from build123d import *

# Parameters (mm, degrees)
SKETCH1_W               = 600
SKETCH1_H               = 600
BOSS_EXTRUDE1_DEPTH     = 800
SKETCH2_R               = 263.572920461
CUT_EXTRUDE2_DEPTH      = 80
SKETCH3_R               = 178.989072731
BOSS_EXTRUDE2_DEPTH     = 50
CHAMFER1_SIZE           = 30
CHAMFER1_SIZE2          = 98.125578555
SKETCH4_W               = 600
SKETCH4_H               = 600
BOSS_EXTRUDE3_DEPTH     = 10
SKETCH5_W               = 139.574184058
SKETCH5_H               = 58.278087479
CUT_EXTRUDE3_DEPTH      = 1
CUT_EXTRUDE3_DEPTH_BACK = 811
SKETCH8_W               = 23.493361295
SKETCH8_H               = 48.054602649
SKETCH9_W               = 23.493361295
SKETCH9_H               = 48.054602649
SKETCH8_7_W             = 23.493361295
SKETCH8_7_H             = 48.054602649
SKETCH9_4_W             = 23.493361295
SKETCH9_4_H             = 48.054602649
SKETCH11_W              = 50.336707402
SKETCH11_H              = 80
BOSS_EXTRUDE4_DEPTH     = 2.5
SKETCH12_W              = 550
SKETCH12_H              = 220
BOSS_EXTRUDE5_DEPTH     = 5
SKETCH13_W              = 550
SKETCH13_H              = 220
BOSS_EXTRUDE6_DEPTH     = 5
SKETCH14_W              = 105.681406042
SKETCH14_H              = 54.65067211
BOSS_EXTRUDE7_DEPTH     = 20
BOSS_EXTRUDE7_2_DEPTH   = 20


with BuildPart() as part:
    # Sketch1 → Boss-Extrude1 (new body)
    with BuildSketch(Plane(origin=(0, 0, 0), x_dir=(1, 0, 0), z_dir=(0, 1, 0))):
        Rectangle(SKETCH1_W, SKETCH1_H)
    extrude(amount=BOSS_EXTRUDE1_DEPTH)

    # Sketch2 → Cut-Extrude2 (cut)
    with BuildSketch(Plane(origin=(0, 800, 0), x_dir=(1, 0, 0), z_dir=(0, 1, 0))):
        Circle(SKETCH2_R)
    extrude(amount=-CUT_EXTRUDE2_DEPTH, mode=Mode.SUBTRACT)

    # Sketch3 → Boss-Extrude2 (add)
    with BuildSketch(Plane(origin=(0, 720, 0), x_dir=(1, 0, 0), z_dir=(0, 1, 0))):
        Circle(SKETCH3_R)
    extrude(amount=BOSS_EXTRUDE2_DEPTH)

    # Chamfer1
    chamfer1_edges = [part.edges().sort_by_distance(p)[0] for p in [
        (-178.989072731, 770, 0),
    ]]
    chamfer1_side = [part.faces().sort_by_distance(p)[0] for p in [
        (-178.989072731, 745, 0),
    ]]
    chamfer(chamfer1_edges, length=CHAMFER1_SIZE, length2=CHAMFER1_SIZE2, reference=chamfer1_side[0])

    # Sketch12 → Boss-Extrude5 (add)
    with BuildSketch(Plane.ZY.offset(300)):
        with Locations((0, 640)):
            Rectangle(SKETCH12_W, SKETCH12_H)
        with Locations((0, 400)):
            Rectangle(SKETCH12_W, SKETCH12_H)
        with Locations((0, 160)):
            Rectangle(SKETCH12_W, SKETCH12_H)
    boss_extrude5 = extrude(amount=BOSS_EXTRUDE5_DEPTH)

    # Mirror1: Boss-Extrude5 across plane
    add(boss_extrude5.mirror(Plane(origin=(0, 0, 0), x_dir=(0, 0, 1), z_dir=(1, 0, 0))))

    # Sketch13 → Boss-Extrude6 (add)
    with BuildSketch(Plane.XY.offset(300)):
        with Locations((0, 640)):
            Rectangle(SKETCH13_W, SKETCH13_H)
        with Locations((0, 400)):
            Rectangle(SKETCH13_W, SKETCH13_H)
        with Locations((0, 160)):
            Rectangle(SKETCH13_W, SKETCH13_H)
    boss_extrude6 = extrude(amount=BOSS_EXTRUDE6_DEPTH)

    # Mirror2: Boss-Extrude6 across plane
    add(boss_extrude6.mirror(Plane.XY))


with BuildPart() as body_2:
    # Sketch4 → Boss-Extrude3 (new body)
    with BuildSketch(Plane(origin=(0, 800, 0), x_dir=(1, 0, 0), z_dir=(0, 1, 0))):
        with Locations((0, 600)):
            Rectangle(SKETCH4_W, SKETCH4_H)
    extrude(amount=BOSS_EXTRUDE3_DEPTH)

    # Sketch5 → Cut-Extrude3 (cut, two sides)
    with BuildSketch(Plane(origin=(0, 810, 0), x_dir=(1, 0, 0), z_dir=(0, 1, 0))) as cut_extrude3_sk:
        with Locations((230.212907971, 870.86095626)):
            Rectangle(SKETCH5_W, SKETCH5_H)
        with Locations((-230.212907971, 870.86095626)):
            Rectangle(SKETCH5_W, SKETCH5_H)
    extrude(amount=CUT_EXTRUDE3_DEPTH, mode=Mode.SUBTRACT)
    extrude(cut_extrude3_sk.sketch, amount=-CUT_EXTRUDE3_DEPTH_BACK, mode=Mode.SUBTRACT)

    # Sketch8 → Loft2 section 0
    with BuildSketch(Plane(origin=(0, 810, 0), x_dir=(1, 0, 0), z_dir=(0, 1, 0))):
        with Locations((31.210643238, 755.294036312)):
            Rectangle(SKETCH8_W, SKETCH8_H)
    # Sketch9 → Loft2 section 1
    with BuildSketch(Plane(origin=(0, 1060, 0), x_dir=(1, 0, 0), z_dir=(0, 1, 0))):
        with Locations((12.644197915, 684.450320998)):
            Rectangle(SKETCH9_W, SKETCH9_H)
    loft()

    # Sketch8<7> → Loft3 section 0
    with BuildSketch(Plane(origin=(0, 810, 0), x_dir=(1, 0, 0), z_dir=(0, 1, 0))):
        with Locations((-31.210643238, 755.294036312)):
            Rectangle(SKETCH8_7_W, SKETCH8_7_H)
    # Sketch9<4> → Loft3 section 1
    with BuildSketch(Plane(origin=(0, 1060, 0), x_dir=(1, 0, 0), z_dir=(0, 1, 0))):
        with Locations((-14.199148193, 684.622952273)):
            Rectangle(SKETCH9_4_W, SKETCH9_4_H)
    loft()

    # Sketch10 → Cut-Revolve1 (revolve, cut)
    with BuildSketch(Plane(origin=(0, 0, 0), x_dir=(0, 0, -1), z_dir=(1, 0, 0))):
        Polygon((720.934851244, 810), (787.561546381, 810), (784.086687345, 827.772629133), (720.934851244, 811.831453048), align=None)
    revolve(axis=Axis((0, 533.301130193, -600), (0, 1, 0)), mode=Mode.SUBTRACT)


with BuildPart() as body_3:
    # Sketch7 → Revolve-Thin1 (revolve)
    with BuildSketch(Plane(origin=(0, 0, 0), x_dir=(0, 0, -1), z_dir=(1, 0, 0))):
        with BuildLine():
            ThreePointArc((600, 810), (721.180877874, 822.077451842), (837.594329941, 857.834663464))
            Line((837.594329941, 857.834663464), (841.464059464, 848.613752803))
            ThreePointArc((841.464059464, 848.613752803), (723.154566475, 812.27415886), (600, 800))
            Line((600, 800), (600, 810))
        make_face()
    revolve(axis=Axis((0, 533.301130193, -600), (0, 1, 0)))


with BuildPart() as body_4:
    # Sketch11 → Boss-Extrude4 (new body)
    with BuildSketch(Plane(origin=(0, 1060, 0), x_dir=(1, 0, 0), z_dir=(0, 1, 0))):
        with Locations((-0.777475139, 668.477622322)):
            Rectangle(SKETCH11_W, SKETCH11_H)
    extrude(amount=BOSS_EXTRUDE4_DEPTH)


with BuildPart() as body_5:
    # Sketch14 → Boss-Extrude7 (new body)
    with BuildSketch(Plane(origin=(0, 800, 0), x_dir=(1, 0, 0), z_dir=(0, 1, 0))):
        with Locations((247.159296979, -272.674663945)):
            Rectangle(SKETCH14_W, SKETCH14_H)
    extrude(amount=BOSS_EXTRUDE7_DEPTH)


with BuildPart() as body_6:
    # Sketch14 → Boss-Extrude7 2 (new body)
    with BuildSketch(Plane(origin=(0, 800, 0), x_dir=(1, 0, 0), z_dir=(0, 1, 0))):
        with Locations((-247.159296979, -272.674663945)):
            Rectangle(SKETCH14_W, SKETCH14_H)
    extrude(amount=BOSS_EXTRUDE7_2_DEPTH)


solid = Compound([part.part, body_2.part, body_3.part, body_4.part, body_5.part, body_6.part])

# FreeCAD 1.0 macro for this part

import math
import FreeCAD as App
import Part
import Sketcher
Q = App.Units.Quantity


def edges_at(feature, points):
    """Names of the edges that pass closest to the given points."""
    edges = feature.Shape.Edges
    near = lambda p: min(range(len(edges)), key=lambda i: edges[i].distToShape(Part.Vertex(*p))[0])
    return sorted({f"Edge{near(p) + 1}" for p in points})

doc = App.newDocument("Part")
body = doc.addObject("PartDesign::Body", "Body")

# Sketch on XZ plane
sketch1 = body.newObject("Sketcher::SketchObject", "Sketch")
sketch1.AttachmentSupport = (doc.getObject("XZ_Plane"), [""])
sketch1.MapMode = "FlatFace"
sketch1.addGeometry([
    Part.LineSegment(App.Vector(-300, -300, 0), App.Vector(-300, 300, 0)),
    Part.LineSegment(App.Vector(-300, 300, 0), App.Vector(300, 300, 0)),
    Part.LineSegment(App.Vector(300, 300, 0), App.Vector(300, -300, 0)),
    Part.LineSegment(App.Vector(300, -300, 0), App.Vector(-300, -300, 0)),
], False)
sketch1.addConstraint([
    Sketcher.Constraint("Coincident", 0, 2, 1, 1),
    Sketcher.Constraint("Coincident", 1, 2, 2, 1),
    Sketcher.Constraint("Coincident", 2, 2, 3, 1),
    Sketcher.Constraint("Coincident", 3, 2, 0, 1),
    Sketcher.Constraint("Vertical", 0),
    Sketcher.Constraint("Horizontal", 1),
    Sketcher.Constraint("Vertical", 2),
    Sketcher.Constraint("Horizontal", 3),
    Sketcher.Constraint("Symmetric", 0, 2, 2, 2, -1, 1),
    Sketcher.Constraint("Equal", 3, 0),
    Sketcher.Constraint("DistanceX", 1, 1, 1, 2, Q("600 mm")),
])
pad1 = body.newObject("PartDesign::Pad", "Pad")
pad1.Profile = sketch1
pad1.Length = 800
pad1.Reversed = True

# Sketch on XZ plane
sketch2 = body.newObject("Sketcher::SketchObject", "Sketch001")
sketch2.AttachmentSupport = (doc.getObject("XZ_Plane"), [""])
sketch2.MapMode = "FlatFace"
sketch2.AttachmentOffset = App.Placement(App.Vector(0, 0, -800), App.Rotation())
sketch2.addGeometry(Part.Circle(App.Vector(0, 0, 0), App.Vector(0, 0, 1), 263.57292), False)
sketch2.addConstraint([
    Sketcher.Constraint("Coincident", 0, 3, -1, 1),
    Sketcher.Constraint("Diameter", 0, Q("527.145841 mm")),
])
pocket1 = body.newObject("PartDesign::Pocket", "Pocket")
pocket1.Profile = sketch2
pocket1.Length = 80
pocket1.Reversed = True

# Sketch on XZ plane
sketch3 = body.newObject("Sketcher::SketchObject", "Sketch002")
sketch3.AttachmentSupport = (doc.getObject("XZ_Plane"), [""])
sketch3.MapMode = "FlatFace"
sketch3.AttachmentOffset = App.Placement(App.Vector(0, 0, -720), App.Rotation())
sketch3.addGeometry(Part.Circle(App.Vector(0, 0, 0), App.Vector(0, 0, 1), 178.989073), False)
sketch3.addConstraint([
    Sketcher.Constraint("Coincident", 0, 3, -1, 1),
    Sketcher.Constraint("Diameter", 0, Q("357.978145 mm")),
])
pad2 = body.newObject("PartDesign::Pad", "Pad001")
pad2.Profile = sketch3
pad2.Length = 50
pad2.Reversed = True
doc.recompute()

chamfer = body.newObject("PartDesign::Chamfer", "Chamfer")
chamfer.Base = (pad2, edges_at(pad2, [(-178.989, 770, 0)]))
chamfer.ChamferType = "Two distances"
chamfer.Size = 30
chamfer.Size2 = 98.125579

# Sketch on YZ plane
sketch4 = body.newObject("Sketcher::SketchObject", "Sketch003")
sketch4.AttachmentSupport = (doc.getObject("YZ_Plane"), [""])
sketch4.MapMode = "FlatFace"
sketch4.AttachmentOffset = App.Placement(App.Vector(0, 0, -300), App.Rotation())
sketch4.addGeometry([
    Part.LineSegment(App.Vector(750, -275, 0), App.Vector(530, -275, 0)),  # 0
    Part.LineSegment(App.Vector(530, -275, 0), App.Vector(530, 275, 0)),  # 1
    Part.LineSegment(App.Vector(530, 275, 0), App.Vector(750, 275, 0)),  # 2
    Part.LineSegment(App.Vector(750, 275, 0), App.Vector(750, -275, 0)),  # 3
    Part.LineSegment(App.Vector(510, -275, 0), App.Vector(290, -275, 0)),  # 4
    Part.LineSegment(App.Vector(290, -275, 0), App.Vector(290, 275, 0)),  # 5
    Part.LineSegment(App.Vector(290, 275, 0), App.Vector(510, 275, 0)),  # 6
    Part.LineSegment(App.Vector(510, 275, 0), App.Vector(510, -275, 0)),  # 7
    Part.LineSegment(App.Vector(270, -275, 0), App.Vector(50, -275, 0)),  # 8
    Part.LineSegment(App.Vector(50, -275, 0), App.Vector(50, 275, 0)),  # 9
    Part.LineSegment(App.Vector(50, 275, 0), App.Vector(270, 275, 0)),  # 10
    Part.LineSegment(App.Vector(270, 275, 0), App.Vector(270, -275, 0)),  # 11
], False)
sketch4.addConstraint([
    Sketcher.Constraint("Coincident", 0, 2, 1, 1),
    Sketcher.Constraint("Coincident", 1, 2, 2, 1),
    Sketcher.Constraint("Coincident", 2, 2, 3, 1),
    Sketcher.Constraint("Coincident", 3, 2, 0, 1),
    Sketcher.Constraint("Coincident", 4, 2, 5, 1),
    Sketcher.Constraint("Coincident", 5, 2, 6, 1),
    Sketcher.Constraint("Coincident", 6, 2, 7, 1),
    Sketcher.Constraint("Coincident", 7, 2, 4, 1),
    Sketcher.Constraint("Coincident", 8, 2, 9, 1),
    Sketcher.Constraint("Coincident", 9, 2, 10, 1),
    Sketcher.Constraint("Coincident", 10, 2, 11, 1),
    Sketcher.Constraint("Coincident", 11, 2, 8, 1),
    Sketcher.Constraint("Horizontal", 0),
    Sketcher.Constraint("Vertical", 1),
    Sketcher.Constraint("Horizontal", 2),
    Sketcher.Constraint("Vertical", 3),
    Sketcher.Constraint("Horizontal", 4),
    Sketcher.Constraint("Vertical", 5),
    Sketcher.Constraint("Horizontal", 6),
    Sketcher.Constraint("Vertical", 7),
    Sketcher.Constraint("Horizontal", 8),
    Sketcher.Constraint("Vertical", 9),
    Sketcher.Constraint("Horizontal", 10),
    Sketcher.Constraint("Vertical", 11),
    Sketcher.Constraint("Horizontal", 3, 2, 4, 2),
    Sketcher.Constraint("Horizontal", 2, 2, 5, 2),
    Sketcher.Constraint("Horizontal", 7, 2, 8, 2),
    Sketcher.Constraint("Horizontal", 6, 2, 9, 2),
    Sketcher.Constraint("Equal", 2, 4),
    Sketcher.Constraint("Equal", 6, 8),
    Sketcher.Constraint("DistanceX", 0, 2, 0, 1, Q("220 mm")),
    Sketcher.Constraint("DistanceY", 1, 1, 1, 2, Q("550 mm")),
    Sketcher.Constraint("DistanceX", -1, 1, 0, 2, Q("530 mm")),
    Sketcher.Constraint("DistanceY", 0, 2, -1, 1, Q("275 mm")),
    Sketcher.Constraint("DistanceX", -1, 1, 4, 2, Q("290 mm")),
    Sketcher.Constraint("DistanceX", -1, 1, 8, 2, Q("50 mm")),
])
pad3 = body.newObject("PartDesign::Pad", "Pad002")
pad3.Profile = sketch4
pad3.Length = 5
pad3.Reversed = True
doc.recompute()

mirrored = body.newObject("PartDesign::Mirrored", "Mirrored")
mirrored.Originals = [pad3]
mirrored.MirrorPlane = (doc.getObject("YZ_Plane"), [""])
body.Tip = mirrored

# Sketch on XY plane
sketch5 = body.newObject("Sketcher::SketchObject", "Sketch004")
sketch5.AttachmentSupport = (doc.getObject("XY_Plane"), [""])
sketch5.MapMode = "FlatFace"
sketch5.AttachmentOffset = App.Placement(App.Vector(0, 0, 300), App.Rotation())
sketch5.addGeometry([
    Part.LineSegment(App.Vector(-275, 750, 0), App.Vector(-275, 530, 0)),  # 0
    Part.LineSegment(App.Vector(-275, 530, 0), App.Vector(275, 530, 0)),  # 1
    Part.LineSegment(App.Vector(275, 530, 0), App.Vector(275, 750, 0)),  # 2
    Part.LineSegment(App.Vector(275, 750, 0), App.Vector(-275, 750, 0)),  # 3
    Part.LineSegment(App.Vector(-275, 510, 0), App.Vector(-275, 290, 0)),  # 4
    Part.LineSegment(App.Vector(-275, 290, 0), App.Vector(275, 290, 0)),  # 5
    Part.LineSegment(App.Vector(275, 290, 0), App.Vector(275, 510, 0)),  # 6
    Part.LineSegment(App.Vector(275, 510, 0), App.Vector(-275, 510, 0)),  # 7
    Part.LineSegment(App.Vector(-275, 270, 0), App.Vector(-275, 50, 0)),  # 8
    Part.LineSegment(App.Vector(-275, 50, 0), App.Vector(275, 50, 0)),  # 9
    Part.LineSegment(App.Vector(275, 50, 0), App.Vector(275, 270, 0)),  # 10
    Part.LineSegment(App.Vector(275, 270, 0), App.Vector(-275, 270, 0)),  # 11
], False)
sketch5.addConstraint([
    Sketcher.Constraint("Coincident", 0, 2, 1, 1),
    Sketcher.Constraint("Coincident", 1, 2, 2, 1),
    Sketcher.Constraint("Coincident", 2, 2, 3, 1),
    Sketcher.Constraint("Coincident", 3, 2, 0, 1),
    Sketcher.Constraint("Coincident", 4, 2, 5, 1),
    Sketcher.Constraint("Coincident", 5, 2, 6, 1),
    Sketcher.Constraint("Coincident", 6, 2, 7, 1),
    Sketcher.Constraint("Coincident", 7, 2, 4, 1),
    Sketcher.Constraint("Coincident", 8, 2, 9, 1),
    Sketcher.Constraint("Coincident", 9, 2, 10, 1),
    Sketcher.Constraint("Coincident", 10, 2, 11, 1),
    Sketcher.Constraint("Coincident", 11, 2, 8, 1),
    Sketcher.Constraint("Vertical", 0),
    Sketcher.Constraint("Horizontal", 1),
    Sketcher.Constraint("Vertical", 2),
    Sketcher.Constraint("Horizontal", 3),
    Sketcher.Constraint("Vertical", 4),
    Sketcher.Constraint("Horizontal", 5),
    Sketcher.Constraint("Vertical", 6),
    Sketcher.Constraint("Horizontal", 7),
    Sketcher.Constraint("Vertical", 8),
    Sketcher.Constraint("Horizontal", 9),
    Sketcher.Constraint("Vertical", 10),
    Sketcher.Constraint("Horizontal", 11),
    Sketcher.Constraint("Vertical", 3, 2, 4, 2),
    Sketcher.Constraint("Vertical", 2, 2, 5, 2),
    Sketcher.Constraint("Vertical", 7, 2, 8, 2),
    Sketcher.Constraint("Vertical", 6, 2, 9, 2),
    Sketcher.Constraint("Equal", 2, 4),
    Sketcher.Constraint("Equal", 6, 8),
    Sketcher.Constraint("DistanceX", 1, 1, 1, 2, Q("550 mm")),
    Sketcher.Constraint("DistanceY", 0, 2, 0, 1, Q("220 mm")),
    Sketcher.Constraint("DistanceX", 0, 2, -1, 1, Q("275 mm")),
    Sketcher.Constraint("DistanceY", -1, 1, 0, 2, Q("530 mm")),
    Sketcher.Constraint("DistanceY", -1, 1, 4, 2, Q("290 mm")),
    Sketcher.Constraint("DistanceY", -1, 1, 8, 2, Q("50 mm")),
])
pad4 = body.newObject("PartDesign::Pad", "Pad003")
pad4.Profile = sketch5
pad4.Length = 5
doc.recompute()

mirrored2 = body.newObject("PartDesign::Mirrored", "Mirrored001")
mirrored2.Originals = [pad4]
mirrored2.MirrorPlane = (doc.getObject("XY_Plane"), [""])
body.Tip = mirrored2
body2 = doc.addObject("PartDesign::Body", "Body001")
body2.AllowCompound = True

# Sketch on XZ plane
sketch6 = body2.newObject("Sketcher::SketchObject", "Sketch005")
sketch6.AttachmentSupport = (doc.getObject("XZ_Plane001"), [""])
sketch6.MapMode = "FlatFace"
sketch6.AttachmentOffset = App.Placement(App.Vector(0, 0, -800), App.Rotation())
sketch6.addGeometry([
    Part.LineSegment(App.Vector(-300, -900, 0), App.Vector(-300, -300, 0)),
    Part.LineSegment(App.Vector(-300, -300, 0), App.Vector(300, -300, 0)),
    Part.LineSegment(App.Vector(300, -300, 0), App.Vector(300, -900, 0)),
    Part.LineSegment(App.Vector(300, -900, 0), App.Vector(-300, -900, 0)),
], False)
sketch6.addConstraint([
    Sketcher.Constraint("Coincident", 0, 2, 1, 1),
    Sketcher.Constraint("Coincident", 1, 2, 2, 1),
    Sketcher.Constraint("Coincident", 2, 2, 3, 1),
    Sketcher.Constraint("Coincident", 3, 2, 0, 1),
    Sketcher.Constraint("Vertical", 0),
    Sketcher.Constraint("Horizontal", 1),
    Sketcher.Constraint("Vertical", 2),
    Sketcher.Constraint("Horizontal", 3),
    Sketcher.Constraint("Equal", 3, 0),
    Sketcher.Constraint("DistanceX", 1, 1, 1, 2, Q("600 mm")),
    Sketcher.Constraint("DistanceX", 0, 2, -1, 1, Q("300 mm")),
    Sketcher.Constraint("DistanceY", 0, 2, -1, 1, Q("300 mm")),
])
pad5 = body2.newObject("PartDesign::Pad", "Pad004")
pad5.Profile = sketch6
pad5.Length = 10
pad5.Reversed = True

# Sketch on XZ plane
sketch7 = body2.newObject("Sketcher::SketchObject", "Sketch006")
sketch7.AttachmentSupport = (doc.getObject("XZ_Plane001"), [""])
sketch7.MapMode = "FlatFace"
sketch7.AttachmentOffset = App.Placement(App.Vector(0, 0, -810), App.Rotation())
sketch7.addGeometry([
    Part.LineSegment(App.Vector(160.425816, -900, 0), App.Vector(160.425816, -841.721913, 0)),  # 0
    Part.LineSegment(App.Vector(160.425816, -841.721913, 0), App.Vector(300, -841.721913, 0)),  # 1
    Part.LineSegment(App.Vector(300, -841.721913, 0), App.Vector(300, -900, 0)),  # 2
    Part.LineSegment(App.Vector(300, -900, 0), App.Vector(160.425816, -900, 0)),  # 3
    Part.LineSegment(App.Vector(-300, -900, 0), App.Vector(-300, -841.721913, 0)),  # 4
    Part.LineSegment(App.Vector(-300, -841.721913, 0), App.Vector(-160.425816, -841.721913, 0)),  # 5
    Part.LineSegment(App.Vector(-160.425816, -841.721913, 0), App.Vector(-160.425816, -900, 0)),  # 6
    Part.LineSegment(App.Vector(-160.425816, -900, 0), App.Vector(-300, -900, 0)),  # 7
], False)
sketch7.addConstraint([
    Sketcher.Constraint("Coincident", 0, 2, 1, 1),
    Sketcher.Constraint("Coincident", 1, 2, 2, 1),
    Sketcher.Constraint("Coincident", 2, 2, 3, 1),
    Sketcher.Constraint("Coincident", 3, 2, 0, 1),
    Sketcher.Constraint("Coincident", 4, 2, 5, 1),
    Sketcher.Constraint("Coincident", 5, 2, 6, 1),
    Sketcher.Constraint("Coincident", 6, 2, 7, 1),
    Sketcher.Constraint("Coincident", 7, 2, 4, 1),
    Sketcher.Constraint("Vertical", 0),
    Sketcher.Constraint("Horizontal", 1),
    Sketcher.Constraint("Vertical", 2),
    Sketcher.Constraint("Horizontal", 3),
    Sketcher.Constraint("Vertical", 4),
    Sketcher.Constraint("Horizontal", 5),
    Sketcher.Constraint("Vertical", 6),
    Sketcher.Constraint("Horizontal", 7),
    Sketcher.Constraint("Symmetric", 1, 2, 4, 2, -2),
    Sketcher.Constraint("Symmetric", 3, 2, 6, 2, -2),
    Sketcher.Constraint("DistanceX", -1, 1, 1, 2, Q("300 mm")),
    Sketcher.Constraint("DistanceY", 2, 2, -1, 1, Q("900 mm")),
    Sketcher.Constraint("DistanceX", 1, 1, 1, 2, Q("139.574184 mm")),
    Sketcher.Constraint("DistanceY", 0, 1, 0, 2, Q("58.278087 mm")),
])
pocket2 = body2.newObject("PartDesign::Pocket", "Pocket001")
pocket2.Profile = sketch7
pocket2.Type = "ThroughAll"
pocket2.Midplane = True

# Sketch on XZ plane
sketch8 = body2.newObject("Sketcher::SketchObject", "Sketch007")
sketch8.AttachmentSupport = (doc.getObject("XZ_Plane001"), [""])
sketch8.MapMode = "FlatFace"
sketch8.AttachmentOffset = App.Placement(App.Vector(0, 0, -810), App.Rotation())
sketch8.addGeometry([
    Part.LineSegment(App.Vector(19.463963, -779.321338, 0), App.Vector(19.463963, -731.266735, 0)),
    Part.LineSegment(App.Vector(19.463963, -731.266735, 0), App.Vector(42.957324, -731.266735, 0)),
    Part.LineSegment(App.Vector(42.957324, -731.266735, 0), App.Vector(42.957324, -779.321338, 0)),
    Part.LineSegment(App.Vector(42.957324, -779.321338, 0), App.Vector(19.463963, -779.321338, 0)),
], False)
sketch8.addConstraint([
    Sketcher.Constraint("Coincident", 0, 2, 1, 1),
    Sketcher.Constraint("Coincident", 1, 2, 2, 1),
    Sketcher.Constraint("Coincident", 2, 2, 3, 1),
    Sketcher.Constraint("Coincident", 3, 2, 0, 1),
    Sketcher.Constraint("Vertical", 0),
    Sketcher.Constraint("Horizontal", 1),
    Sketcher.Constraint("Vertical", 2),
    Sketcher.Constraint("Horizontal", 3),
    Sketcher.Constraint("DistanceX", 1, 1, 1, 2, Q("23.493361 mm")),
    Sketcher.Constraint("DistanceY", 0, 1, 0, 2, Q("48.054603 mm")),
    Sketcher.Constraint("DistanceX", -1, 1, 0, 2, Q("19.463963 mm")),
    Sketcher.Constraint("DistanceY", 0, 2, -1, 1, Q("731.266735 mm")),
])

# Sketch on XZ plane
sketch9 = body2.newObject("Sketcher::SketchObject", "Sketch008")
sketch9.AttachmentSupport = (doc.getObject("XZ_Plane001"), [""])
sketch9.MapMode = "FlatFace"
sketch9.AttachmentOffset = App.Placement(App.Vector(0, 0, -1060), App.Rotation())
sketch9.addGeometry([
    Part.LineSegment(App.Vector(0.897517, -708.477622, 0), App.Vector(0.897517, -660.42302, 0)),
    Part.LineSegment(App.Vector(0.897517, -660.42302, 0), App.Vector(24.390879, -660.42302, 0)),
    Part.LineSegment(App.Vector(24.390879, -660.42302, 0), App.Vector(24.390879, -708.477622, 0)),
    Part.LineSegment(App.Vector(24.390879, -708.477622, 0), App.Vector(0.897517, -708.477622, 0)),
], False)
sketch9.addConstraint([
    Sketcher.Constraint("Coincident", 0, 2, 1, 1),
    Sketcher.Constraint("Coincident", 1, 2, 2, 1),
    Sketcher.Constraint("Coincident", 2, 2, 3, 1),
    Sketcher.Constraint("Coincident", 3, 2, 0, 1),
    Sketcher.Constraint("Vertical", 0),
    Sketcher.Constraint("Horizontal", 1),
    Sketcher.Constraint("Vertical", 2),
    Sketcher.Constraint("Horizontal", 3),
    Sketcher.Constraint("DistanceX", 1, 1, 1, 2, Q("23.493361 mm")),
    Sketcher.Constraint("DistanceY", 0, 1, 0, 2, Q("48.054603 mm")),
    Sketcher.Constraint("DistanceY", 0, 2, -1, 1, Q("660.42302 mm")),
    Sketcher.Constraint("DistanceX", -1, 1, 1, 2, Q("24.390879 mm")),
])

additiveloft = body2.newObject("PartDesign::AdditiveLoft", "AdditiveLoft")
additiveloft.Profile = sketch8
additiveloft.Sections = [sketch9]

# Sketch on XZ plane
sketch10 = body2.newObject("Sketcher::SketchObject", "Sketch009")
sketch10.AttachmentSupport = (doc.getObject("XZ_Plane001"), [""])
sketch10.MapMode = "FlatFace"
sketch10.AttachmentOffset = App.Placement(App.Vector(0, 0, -810), App.Rotation())
sketch10.addGeometry([
    Part.LineSegment(App.Vector(-42.957324, -779.321338, 0), App.Vector(-42.957324, -731.266735, 0)),
    Part.LineSegment(App.Vector(-42.957324, -731.266735, 0), App.Vector(-19.463963, -731.266735, 0)),
    Part.LineSegment(App.Vector(-19.463963, -731.266735, 0), App.Vector(-19.463963, -779.321338, 0)),
    Part.LineSegment(App.Vector(-19.463963, -779.321338, 0), App.Vector(-42.957324, -779.321338, 0)),
], False)
sketch10.addConstraint([
    Sketcher.Constraint("Coincident", 0, 2, 1, 1),
    Sketcher.Constraint("Coincident", 1, 2, 2, 1),
    Sketcher.Constraint("Coincident", 2, 2, 3, 1),
    Sketcher.Constraint("Coincident", 3, 2, 0, 1),
    Sketcher.Constraint("Vertical", 0),
    Sketcher.Constraint("Horizontal", 1),
    Sketcher.Constraint("Vertical", 2),
    Sketcher.Constraint("Horizontal", 3),
    Sketcher.Constraint("DistanceX", 1, 1, 1, 2, Q("23.493361 mm")),
    Sketcher.Constraint("DistanceY", 0, 1, 0, 2, Q("48.054603 mm")),
    Sketcher.Constraint("DistanceX", 0, 2, -1, 1, Q("42.957324 mm")),
    Sketcher.Constraint("DistanceY", 0, 2, -1, 1, Q("731.266735 mm")),
])

# Sketch on XZ plane
sketch11 = body2.newObject("Sketcher::SketchObject", "Sketch010")
sketch11.AttachmentSupport = (doc.getObject("XZ_Plane001"), [""])
sketch11.MapMode = "FlatFace"
sketch11.AttachmentOffset = App.Placement(App.Vector(0, 0, -1060), App.Rotation())
sketch11.addGeometry([
    Part.LineSegment(App.Vector(-25.945829, -708.650254, 0), App.Vector(-25.945829, -660.595651, 0)),
    Part.LineSegment(App.Vector(-25.945829, -660.595651, 0), App.Vector(-2.452468, -660.595651, 0)),
    Part.LineSegment(App.Vector(-2.452468, -660.595651, 0), App.Vector(-2.452468, -708.650254, 0)),
    Part.LineSegment(App.Vector(-2.452468, -708.650254, 0), App.Vector(-25.945829, -708.650254, 0)),
], False)
sketch11.addConstraint([
    Sketcher.Constraint("Coincident", 0, 2, 1, 1),
    Sketcher.Constraint("Coincident", 1, 2, 2, 1),
    Sketcher.Constraint("Coincident", 2, 2, 3, 1),
    Sketcher.Constraint("Coincident", 3, 2, 0, 1),
    Sketcher.Constraint("Vertical", 0),
    Sketcher.Constraint("Horizontal", 1),
    Sketcher.Constraint("Vertical", 2),
    Sketcher.Constraint("Horizontal", 3),
    Sketcher.Constraint("DistanceX", 1, 1, 1, 2, Q("23.493361 mm")),
    Sketcher.Constraint("DistanceY", 0, 1, 0, 2, Q("48.054603 mm")),
    Sketcher.Constraint("DistanceX", 0, 2, -1, 1, Q("25.945829 mm")),
    Sketcher.Constraint("DistanceY", 0, 2, -1, 1, Q("660.595651 mm")),
])

additiveloft2 = body2.newObject("PartDesign::AdditiveLoft", "AdditiveLoft001")
additiveloft2.Profile = sketch10
additiveloft2.Sections = [sketch11]

# Sketch on YZ plane
sketch12 = body2.newObject("Sketcher::SketchObject", "Sketch011")
sketch12.AttachmentSupport = (doc.getObject("YZ_Plane001"), [""])
sketch12.MapMode = "FlatFace"
sketch12.addGeometry([
    Part.LineSegment(App.Vector(810, -720.934851, 0), App.Vector(810, -787.561546, 0)),
    Part.LineSegment(App.Vector(810, -787.561546, 0), App.Vector(827.772629, -784.086687, 0)),
    Part.LineSegment(App.Vector(827.772629, -784.086687, 0), App.Vector(811.831453, -720.934851, 0)),
    Part.LineSegment(App.Vector(811.831453, -720.934851, 0), App.Vector(810, -720.934851, 0)),
], False)
sketch12.addGeometry(Part.LineSegment(App.Vector(810, -600, 0), App.Vector(827.772629, -600, 0)), True)  # axis
sketch12.addConstraint([
    Sketcher.Constraint("Coincident", 0, 2, 1, 1),
    Sketcher.Constraint("Coincident", 1, 2, 2, 1),
    Sketcher.Constraint("Coincident", 2, 2, 3, 1),
    Sketcher.Constraint("Coincident", 3, 2, 0, 1),
    Sketcher.Constraint("Vertical", 0),
    Sketcher.Constraint("Horizontal", 3),
    Sketcher.Constraint("Horizontal", 4),
    Sketcher.Constraint("Vertical", 3, 2, 4, 1),
    Sketcher.Constraint("Vertical", 1, 2, 4, 2),
    Sketcher.Constraint("DistanceX", -1, 1, 0, 2, Q("810 mm")),
    Sketcher.Constraint("DistanceY", 4, 1, -1, 1, Q("600 mm")),
    Sketcher.Constraint("DistanceX", 4, 1, 4, 2, Q("17.772629 mm")),
    Sketcher.Constraint("Distance", 1, Q("18.109141 mm")),
    Sketcher.Constraint("DistanceX", 3, 2, 3, 1, Q("1.831453 mm")),
    Sketcher.Constraint("DistanceY", 0, 2, 0, 1, Q("66.626695 mm")),
    Sketcher.Constraint("DistanceY", 2, 2, -1, 1, Q("720.934851 mm")),
])
groove = body2.newObject("PartDesign::Groove", "Groove")
groove.Profile = sketch12
groove.ReferenceAxis = (sketch12, ["Axis0"])
groove.Angle = 360
body3 = doc.addObject("PartDesign::Body", "Body002")

# Sketch on YZ plane
sketch13 = body3.newObject("Sketcher::SketchObject", "Sketch012")
sketch13.AttachmentSupport = (doc.getObject("YZ_Plane002"), [""])
sketch13.MapMode = "FlatFace"
sketch13.addGeometry([
    Part.ArcOfCircle(Part.Circle(App.Vector(1423.981749, -600, 0), App.Vector(0, 0, 1), 613.981749), math.radians(180), math.radians(202.766278)),
    Part.LineSegment(App.Vector(810, -600, 0), App.Vector(800, -600, 0)),
    Part.ArcOfCircle(Part.Circle(App.Vector(1423.981749, -600, 0), App.Vector(0, 0, 1), 623.981749), math.radians(-180), math.radians(-157.233722)),
    Part.LineSegment(App.Vector(848.613753, -841.464059, 0), App.Vector(857.834663, -837.59433, 0)),
], False)
sketch13.addGeometry(Part.LineSegment(App.Vector(800, -600, 0), App.Vector(1423.981749, -600, 0)), True)  # axis
sketch13.addConstraint([
    Sketcher.Constraint("Coincident", 0, 1, 1, 1),
    Sketcher.Constraint("Coincident", 1, 2, 2, 1),
    Sketcher.Constraint("Coincident", 2, 2, 3, 1),
    Sketcher.Constraint("Coincident", 3, 2, 0, 2),
    Sketcher.Constraint("Horizontal", 1),
    Sketcher.Constraint("Horizontal", 4),
    Sketcher.Constraint("Coincident", 2, 3, 0, 3),
    Sketcher.Constraint("Coincident", 4, 1, 1, 2),
    Sketcher.Constraint("Coincident", 4, 2, 0, 3),
    Sketcher.Constraint("DistanceX", 1, 2, 1, 1, Q("10 mm")),
    Sketcher.Constraint("DistanceY", 0, 3, -1, 1, Q("600 mm")),
    Sketcher.Constraint("DistanceX", -1, 1, 0, 1, Q("810 mm")),
    Sketcher.Constraint("Radius", 0, Q("613.981749 mm")),
    Sketcher.Constraint("DistanceY", 3, 2, -1, 1, Q("837.59433 mm")),
    Sketcher.Constraint("Angle", 3, Q("22.766278 deg")),
])
revolution = body3.newObject("PartDesign::Revolution", "Revolution")
revolution.Profile = sketch13
revolution.ReferenceAxis = (sketch13, ["Axis0"])
revolution.Angle = 360
body4 = doc.addObject("PartDesign::Body", "Body003")

# Sketch on XZ plane
sketch14 = body4.newObject("Sketcher::SketchObject", "Sketch013")
sketch14.AttachmentSupport = (doc.getObject("XZ_Plane003"), [""])
sketch14.MapMode = "FlatFace"
sketch14.AttachmentOffset = App.Placement(App.Vector(0, 0, -1060), App.Rotation())
sketch14.addGeometry([
    Part.LineSegment(App.Vector(-25.945829, -708.477622, 0), App.Vector(-25.945829, -628.477622, 0)),
    Part.LineSegment(App.Vector(-25.945829, -628.477622, 0), App.Vector(24.390879, -628.477622, 0)),
    Part.LineSegment(App.Vector(24.390879, -628.477622, 0), App.Vector(24.390879, -708.477622, 0)),
    Part.LineSegment(App.Vector(24.390879, -708.477622, 0), App.Vector(-25.945829, -708.477622, 0)),
], False)
sketch14.addConstraint([
    Sketcher.Constraint("Coincident", 0, 2, 1, 1),
    Sketcher.Constraint("Coincident", 1, 2, 2, 1),
    Sketcher.Constraint("Coincident", 2, 2, 3, 1),
    Sketcher.Constraint("Coincident", 3, 2, 0, 1),
    Sketcher.Constraint("Vertical", 0),
    Sketcher.Constraint("Horizontal", 1),
    Sketcher.Constraint("Vertical", 2),
    Sketcher.Constraint("Horizontal", 3),
    Sketcher.Constraint("DistanceY", 0, 1, 0, 2, Q("80 mm")),
    Sketcher.Constraint("DistanceX", 1, 1, 1, 2, Q("50.336707 mm")),
    Sketcher.Constraint("DistanceX", 0, 2, -1, 1, Q("25.945829 mm")),
    Sketcher.Constraint("DistanceY", 0, 2, -1, 1, Q("628.477622 mm")),
])
pad6 = body4.newObject("PartDesign::Pad", "Pad005")
pad6.Profile = sketch14
pad6.Length = 2.5
pad6.Reversed = True
body5 = doc.addObject("PartDesign::Body", "Body004")

# Sketch on XZ plane
sketch15 = body5.newObject("Sketcher::SketchObject", "Sketch014")
sketch15.AttachmentSupport = (doc.getObject("XZ_Plane004"), [""])
sketch15.MapMode = "FlatFace"
sketch15.AttachmentOffset = App.Placement(App.Vector(0, 0, -800), App.Rotation())
sketch15.addGeometry([
    Part.LineSegment(App.Vector(194.318594, 245.349328, 0), App.Vector(194.318594, 300, 0)),
    Part.LineSegment(App.Vector(194.318594, 300, 0), App.Vector(300, 300, 0)),
    Part.LineSegment(App.Vector(300, 300, 0), App.Vector(300, 245.349328, 0)),
    Part.LineSegment(App.Vector(300, 245.349328, 0), App.Vector(194.318594, 245.349328, 0)),
], False)
sketch15.addConstraint([
    Sketcher.Constraint("Coincident", 0, 2, 1, 1),
    Sketcher.Constraint("Coincident", 1, 2, 2, 1),
    Sketcher.Constraint("Coincident", 2, 2, 3, 1),
    Sketcher.Constraint("Coincident", 3, 2, 0, 1),
    Sketcher.Constraint("Vertical", 0),
    Sketcher.Constraint("Horizontal", 1),
    Sketcher.Constraint("Vertical", 2),
    Sketcher.Constraint("Horizontal", 3),
    Sketcher.Constraint("DistanceY", -1, 1, 0, 2, Q("300 mm")),
    Sketcher.Constraint("DistanceX", -1, 1, 1, 2, Q("300 mm")),
    Sketcher.Constraint("DistanceX", 1, 1, 1, 2, Q("105.681406 mm")),
    Sketcher.Constraint("DistanceY", 0, 1, 0, 2, Q("54.650672 mm")),
])
pad7 = body5.newObject("PartDesign::Pad", "Pad006")
pad7.Profile = sketch15
pad7.Length = 20
pad7.Reversed = True
body6 = doc.addObject("PartDesign::Body", "Body005")

# Sketch on XZ plane
sketch16 = body6.newObject("Sketcher::SketchObject", "Sketch015")
sketch16.AttachmentSupport = (doc.getObject("XZ_Plane005"), [""])
sketch16.MapMode = "FlatFace"
sketch16.AttachmentOffset = App.Placement(App.Vector(0, 0, -800), App.Rotation())
sketch16.addGeometry([
    Part.LineSegment(App.Vector(-300, 245.349328, 0), App.Vector(-300, 300, 0)),
    Part.LineSegment(App.Vector(-300, 300, 0), App.Vector(-194.318594, 300, 0)),
    Part.LineSegment(App.Vector(-194.318594, 300, 0), App.Vector(-194.318594, 245.349328, 0)),
    Part.LineSegment(App.Vector(-194.318594, 245.349328, 0), App.Vector(-300, 245.349328, 0)),
], False)
sketch16.addConstraint([
    Sketcher.Constraint("Coincident", 0, 2, 1, 1),
    Sketcher.Constraint("Coincident", 1, 2, 2, 1),
    Sketcher.Constraint("Coincident", 2, 2, 3, 1),
    Sketcher.Constraint("Coincident", 3, 2, 0, 1),
    Sketcher.Constraint("Vertical", 0),
    Sketcher.Constraint("Horizontal", 1),
    Sketcher.Constraint("Vertical", 2),
    Sketcher.Constraint("Horizontal", 3),
    Sketcher.Constraint("DistanceX", 0, 2, -1, 1, Q("300 mm")),
    Sketcher.Constraint("DistanceY", -1, 1, 0, 2, Q("300 mm")),
    Sketcher.Constraint("DistanceX", 1, 1, 1, 2, Q("105.681406 mm")),
    Sketcher.Constraint("DistanceY", 0, 1, 0, 2, Q("54.650672 mm")),
])
pad8 = body6.newObject("PartDesign::Pad", "Pad007")
pad8.Profile = sketch16
pad8.Length = 20
pad8.Reversed = True

doc.recompute()
